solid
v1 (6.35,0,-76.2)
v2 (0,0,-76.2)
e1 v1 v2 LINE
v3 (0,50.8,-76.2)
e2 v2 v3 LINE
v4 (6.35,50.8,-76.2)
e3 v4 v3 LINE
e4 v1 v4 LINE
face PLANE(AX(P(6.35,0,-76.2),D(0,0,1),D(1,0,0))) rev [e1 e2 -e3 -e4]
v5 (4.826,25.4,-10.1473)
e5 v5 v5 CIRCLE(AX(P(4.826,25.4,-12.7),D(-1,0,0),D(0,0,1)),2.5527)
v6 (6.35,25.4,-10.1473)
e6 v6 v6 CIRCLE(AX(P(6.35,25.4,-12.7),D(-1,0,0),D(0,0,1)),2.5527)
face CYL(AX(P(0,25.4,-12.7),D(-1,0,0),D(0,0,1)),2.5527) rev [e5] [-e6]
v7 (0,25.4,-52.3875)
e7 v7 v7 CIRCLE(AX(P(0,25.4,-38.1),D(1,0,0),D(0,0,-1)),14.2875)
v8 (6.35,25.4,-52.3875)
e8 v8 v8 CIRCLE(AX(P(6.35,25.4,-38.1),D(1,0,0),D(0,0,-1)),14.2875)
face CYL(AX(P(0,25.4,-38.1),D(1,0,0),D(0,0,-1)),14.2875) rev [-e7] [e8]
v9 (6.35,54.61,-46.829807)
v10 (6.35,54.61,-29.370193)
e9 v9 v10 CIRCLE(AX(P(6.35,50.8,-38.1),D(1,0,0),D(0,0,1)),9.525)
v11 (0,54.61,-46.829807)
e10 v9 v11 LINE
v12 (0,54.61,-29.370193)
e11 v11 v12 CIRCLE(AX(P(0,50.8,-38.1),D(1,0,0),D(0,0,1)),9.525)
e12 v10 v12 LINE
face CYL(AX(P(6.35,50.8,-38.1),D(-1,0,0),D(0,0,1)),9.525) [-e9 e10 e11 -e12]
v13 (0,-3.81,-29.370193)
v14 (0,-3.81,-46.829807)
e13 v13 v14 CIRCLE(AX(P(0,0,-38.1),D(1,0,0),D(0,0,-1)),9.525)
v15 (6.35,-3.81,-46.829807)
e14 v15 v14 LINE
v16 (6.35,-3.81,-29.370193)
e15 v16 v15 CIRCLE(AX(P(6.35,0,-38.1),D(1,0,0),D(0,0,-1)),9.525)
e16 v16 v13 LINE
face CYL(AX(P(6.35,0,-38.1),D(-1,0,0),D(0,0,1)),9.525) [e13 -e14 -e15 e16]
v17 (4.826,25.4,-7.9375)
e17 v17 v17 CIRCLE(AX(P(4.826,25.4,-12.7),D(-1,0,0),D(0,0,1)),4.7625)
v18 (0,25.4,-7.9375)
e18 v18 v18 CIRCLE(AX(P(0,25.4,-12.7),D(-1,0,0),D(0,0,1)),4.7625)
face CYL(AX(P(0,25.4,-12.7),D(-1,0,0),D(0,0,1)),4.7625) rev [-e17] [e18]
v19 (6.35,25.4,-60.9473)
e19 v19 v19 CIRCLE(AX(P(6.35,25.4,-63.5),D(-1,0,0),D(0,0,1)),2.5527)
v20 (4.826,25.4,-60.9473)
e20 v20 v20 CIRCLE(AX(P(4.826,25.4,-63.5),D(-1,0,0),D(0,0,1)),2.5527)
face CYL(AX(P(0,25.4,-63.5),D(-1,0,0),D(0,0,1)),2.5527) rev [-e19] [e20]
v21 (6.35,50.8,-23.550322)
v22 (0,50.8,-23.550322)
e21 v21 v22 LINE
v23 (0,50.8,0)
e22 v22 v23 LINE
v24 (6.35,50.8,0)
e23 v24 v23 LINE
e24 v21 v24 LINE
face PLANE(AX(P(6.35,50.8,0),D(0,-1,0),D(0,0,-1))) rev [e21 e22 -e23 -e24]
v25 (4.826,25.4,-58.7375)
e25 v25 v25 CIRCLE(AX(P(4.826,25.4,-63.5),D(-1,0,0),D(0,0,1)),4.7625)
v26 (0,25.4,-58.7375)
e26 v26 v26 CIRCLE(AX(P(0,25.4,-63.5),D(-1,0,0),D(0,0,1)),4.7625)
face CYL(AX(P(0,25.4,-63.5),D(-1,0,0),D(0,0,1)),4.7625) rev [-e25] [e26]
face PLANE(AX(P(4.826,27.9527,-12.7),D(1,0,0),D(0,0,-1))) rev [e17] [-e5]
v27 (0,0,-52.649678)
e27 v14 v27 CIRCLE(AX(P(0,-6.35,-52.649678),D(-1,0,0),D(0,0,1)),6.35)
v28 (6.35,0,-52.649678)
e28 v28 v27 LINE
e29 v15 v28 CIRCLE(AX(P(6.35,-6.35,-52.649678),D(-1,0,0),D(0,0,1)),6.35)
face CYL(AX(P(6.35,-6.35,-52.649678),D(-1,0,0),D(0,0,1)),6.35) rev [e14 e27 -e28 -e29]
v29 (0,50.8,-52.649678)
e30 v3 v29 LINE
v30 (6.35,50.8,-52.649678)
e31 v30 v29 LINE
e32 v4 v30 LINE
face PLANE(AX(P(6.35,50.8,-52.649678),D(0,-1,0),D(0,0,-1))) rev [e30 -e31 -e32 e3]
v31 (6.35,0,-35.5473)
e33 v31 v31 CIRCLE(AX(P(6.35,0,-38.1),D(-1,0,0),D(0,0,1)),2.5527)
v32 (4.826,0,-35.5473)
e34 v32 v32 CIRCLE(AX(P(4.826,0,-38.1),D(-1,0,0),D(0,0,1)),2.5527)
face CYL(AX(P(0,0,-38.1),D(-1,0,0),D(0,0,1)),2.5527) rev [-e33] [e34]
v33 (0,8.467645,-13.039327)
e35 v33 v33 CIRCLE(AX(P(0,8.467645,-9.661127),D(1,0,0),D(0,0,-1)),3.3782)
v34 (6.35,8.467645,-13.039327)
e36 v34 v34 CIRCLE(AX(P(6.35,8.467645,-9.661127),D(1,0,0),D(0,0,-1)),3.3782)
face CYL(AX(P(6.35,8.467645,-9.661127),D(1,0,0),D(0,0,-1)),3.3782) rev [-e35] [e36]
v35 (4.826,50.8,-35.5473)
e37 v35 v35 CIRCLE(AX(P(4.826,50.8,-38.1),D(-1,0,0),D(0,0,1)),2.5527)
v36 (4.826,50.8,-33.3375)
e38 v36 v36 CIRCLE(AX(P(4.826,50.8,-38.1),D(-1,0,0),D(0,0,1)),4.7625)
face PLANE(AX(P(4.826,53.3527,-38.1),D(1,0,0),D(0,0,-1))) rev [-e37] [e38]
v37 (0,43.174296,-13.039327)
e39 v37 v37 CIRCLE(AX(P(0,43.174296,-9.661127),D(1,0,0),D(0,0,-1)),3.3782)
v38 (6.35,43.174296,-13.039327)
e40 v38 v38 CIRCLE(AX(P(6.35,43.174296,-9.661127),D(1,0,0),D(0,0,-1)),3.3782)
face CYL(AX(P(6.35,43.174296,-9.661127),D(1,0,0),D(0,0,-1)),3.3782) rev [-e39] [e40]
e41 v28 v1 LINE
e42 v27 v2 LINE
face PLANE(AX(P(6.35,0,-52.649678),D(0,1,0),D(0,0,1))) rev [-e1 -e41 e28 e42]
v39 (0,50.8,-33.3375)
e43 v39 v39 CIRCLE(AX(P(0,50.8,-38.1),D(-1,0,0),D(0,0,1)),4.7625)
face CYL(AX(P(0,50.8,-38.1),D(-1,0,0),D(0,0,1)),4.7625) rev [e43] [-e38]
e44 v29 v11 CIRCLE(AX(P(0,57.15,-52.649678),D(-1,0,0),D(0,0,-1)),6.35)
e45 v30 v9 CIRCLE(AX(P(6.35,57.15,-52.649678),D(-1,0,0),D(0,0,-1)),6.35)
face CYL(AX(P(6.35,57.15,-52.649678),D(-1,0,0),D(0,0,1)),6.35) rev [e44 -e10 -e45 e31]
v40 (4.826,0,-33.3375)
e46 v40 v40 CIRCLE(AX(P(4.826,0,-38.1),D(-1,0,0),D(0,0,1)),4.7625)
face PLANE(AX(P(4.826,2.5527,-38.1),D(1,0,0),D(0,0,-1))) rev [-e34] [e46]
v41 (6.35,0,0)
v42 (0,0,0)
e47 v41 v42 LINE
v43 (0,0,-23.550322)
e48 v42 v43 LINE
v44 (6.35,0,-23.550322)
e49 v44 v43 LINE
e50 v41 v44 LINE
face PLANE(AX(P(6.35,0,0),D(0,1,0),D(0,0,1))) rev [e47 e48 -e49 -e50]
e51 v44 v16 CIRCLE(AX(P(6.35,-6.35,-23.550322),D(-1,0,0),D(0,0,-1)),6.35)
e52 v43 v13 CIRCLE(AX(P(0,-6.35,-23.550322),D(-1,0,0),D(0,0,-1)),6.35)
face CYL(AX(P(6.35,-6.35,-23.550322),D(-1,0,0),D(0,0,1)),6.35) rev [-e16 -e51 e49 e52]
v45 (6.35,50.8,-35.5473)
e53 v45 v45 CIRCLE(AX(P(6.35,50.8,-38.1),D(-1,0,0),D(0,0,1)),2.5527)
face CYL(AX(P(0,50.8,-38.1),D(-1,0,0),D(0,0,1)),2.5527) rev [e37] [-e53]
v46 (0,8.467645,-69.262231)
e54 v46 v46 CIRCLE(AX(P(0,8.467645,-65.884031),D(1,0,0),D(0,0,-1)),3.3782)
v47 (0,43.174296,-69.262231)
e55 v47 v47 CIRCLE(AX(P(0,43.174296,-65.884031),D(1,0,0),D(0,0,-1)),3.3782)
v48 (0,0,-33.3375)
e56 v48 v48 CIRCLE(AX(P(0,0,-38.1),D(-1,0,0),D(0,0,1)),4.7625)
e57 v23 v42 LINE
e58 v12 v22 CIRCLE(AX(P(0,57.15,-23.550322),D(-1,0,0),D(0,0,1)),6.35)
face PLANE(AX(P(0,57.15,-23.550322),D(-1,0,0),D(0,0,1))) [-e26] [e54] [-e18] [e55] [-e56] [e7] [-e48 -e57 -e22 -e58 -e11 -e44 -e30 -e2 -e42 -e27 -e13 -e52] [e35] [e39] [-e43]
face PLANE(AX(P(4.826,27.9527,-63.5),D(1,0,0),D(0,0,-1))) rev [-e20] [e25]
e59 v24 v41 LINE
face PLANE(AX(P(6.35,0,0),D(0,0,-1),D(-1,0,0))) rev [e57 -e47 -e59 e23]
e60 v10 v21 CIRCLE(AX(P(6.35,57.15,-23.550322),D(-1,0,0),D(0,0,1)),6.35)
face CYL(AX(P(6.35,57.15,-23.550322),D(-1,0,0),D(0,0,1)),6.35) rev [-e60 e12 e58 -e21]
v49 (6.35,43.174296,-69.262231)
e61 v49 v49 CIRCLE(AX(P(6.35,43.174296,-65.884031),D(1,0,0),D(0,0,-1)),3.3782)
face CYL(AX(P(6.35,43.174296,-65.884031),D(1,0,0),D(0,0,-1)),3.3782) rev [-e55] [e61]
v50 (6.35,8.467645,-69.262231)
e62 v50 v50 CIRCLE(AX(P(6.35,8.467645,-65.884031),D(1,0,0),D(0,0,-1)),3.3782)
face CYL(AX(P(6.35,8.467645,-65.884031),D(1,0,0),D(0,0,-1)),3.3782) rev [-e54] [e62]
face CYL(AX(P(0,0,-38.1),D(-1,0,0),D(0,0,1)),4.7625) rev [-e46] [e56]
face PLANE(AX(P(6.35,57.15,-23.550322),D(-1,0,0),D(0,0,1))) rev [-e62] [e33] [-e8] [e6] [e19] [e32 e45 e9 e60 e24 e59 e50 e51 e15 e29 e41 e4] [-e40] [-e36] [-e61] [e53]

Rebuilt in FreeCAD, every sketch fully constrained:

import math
import FreeCAD as App
import Part
import Sketcher

V = App.Vector
Q = App.Units.Quantity

doc = App.newDocument("Part")
body = doc.addObject("PartDesign::Body", "Body")

sketch1 = body.newObject("Sketcher::SketchObject", "Sketch")
sketch1.AttachmentSupport = (doc.getObject("YZ_Plane"), [""])
sketch1.MapMode = "FlatFace"
sketch1.addGeometry([
    Part.LineSegment(V(51, -76, 0), V(51, -53, 0)),
    Part.ArcOfCircle(Part.Circle(V(57, -53, 0), V(0, 0, 1), 6), math.radians(114), math.radians(180)),
    Part.ArcOfCircle(Part.Circle(V(51, -38, 0), V(0, 0, 1), 10), math.radians(-66), math.radians(66)),
    Part.ArcOfCircle(Part.Circle(V(57, -24, 0), V(0, 0, 1), 6), math.radians(-180), math.radians(-114)),
    Part.LineSegment(V(51, -24, 0), V(51, 0, 0)),
    Part.LineSegment(V(51, 0, 0), V(0, 0, 0)),
    Part.LineSegment(V(0, 0, 0), V(0, -24, 0)),
    Part.ArcOfCircle(Part.Circle(V(-6, -24, 0), V(0, 0, 1), 6), math.radians(-66), math.radians(0)),
    Part.ArcOfCircle(Part.Circle(V(0, -38, 0), V(0, 0, 1), 10), math.radians(114), math.radians(246)),
    Part.ArcOfCircle(Part.Circle(V(-6, -53, 0), V(0, 0, 1), 6), math.radians(0), math.radians(66)),
    Part.LineSegment(V(0, -53, 0), V(0, -76, 0)),
    Part.LineSegment(V(0, -76, 0), V(51, -76, 0)),
], False)
sketch1.addConstraint([
    Sketcher.Constraint("Tangent", 0, 2, 1, 2),
    Sketcher.Constraint("Tangent", 1, 1, 2, 1),
    Sketcher.Constraint("Tangent", 2, 2, 3, 2),
    Sketcher.Constraint("Tangent", 3, 1, 4, 1),
    Sketcher.Constraint("Coincident", 4, 2, 5, 1),
    Sketcher.Constraint("Coincident", 5, 2, 6, 1),
    Sketcher.Constraint("Tangent", 6, 2, 7, 2),
    Sketcher.Constraint("Tangent", 7, 1, 8, 1),
    Sketcher.Constraint("Tangent", 8, 2, 9, 2),
    Sketcher.Constraint("Tangent", 9, 1, 10, 1),
    Sketcher.Constraint("Coincident", 10, 2, 11, 1),
    Sketcher.Constraint("Coincident", 11, 2, 0, 1),
    Sketcher.Constraint("Vertical", 0),
    Sketcher.Constraint("Vertical", 4),
    Sketcher.Constraint("Horizontal", 5),
    Sketcher.Constraint("Vertical", 6),
    Sketcher.Constraint("Vertical", 10),
    Sketcher.Constraint("Horizontal", 11),
    Sketcher.Constraint("Coincident", 5, 2, -1, 1),
    Sketcher.Constraint("Equal", 1, 3),
    Sketcher.Constraint("Equal", 3, 7),
    Sketcher.Constraint("Equal", 2, 8),
    Sketcher.Constraint("Equal", 7, 9),
    Sketcher.Constraint("PointOnObject", 8, 3, -2),
    Sketcher.Constraint("PointOnObject", 9, 1, -2),
    Sketcher.Constraint("Horizontal", 3, 3, 7, 3),
    Sketcher.Constraint("Horizontal", 2, 3, 8, 3),
    Sketcher.Constraint("Horizontal", 1, 3, 9, 3),
    Sketcher.Constraint("Equal", 0, 4),
    Sketcher.Constraint("DistanceX", 5, 2, 5, 1, Q("2 in")),
    Sketcher.Constraint("Radius", 1, Q("0.25 in")),
    Sketcher.Constraint("DistanceY", 10, 2, -1, 1, Q("3 in")),
    Sketcher.Constraint("Radius", 2, Q("0.375 in")),
])
pad1 = body.newObject("PartDesign::Pad", "Pad")
pad1.Profile = sketch1
pad1.Length = Q("0.25 in")

sketch2 = body.newObject("Sketcher::SketchObject", "Sketch001")
sketch2.AttachmentSupport = (doc.getObject("YZ_Plane"), [""])
sketch2.MapMode = "FlatFace"
sketch2.AttachmentOffset = App.Placement(V(0, 0, 0.25 * 25.4), App.Rotation())
sketch2.addGeometry(Part.Circle(V(25, -38, 0), V(0, 0, 1), 14), False)
sketch2.addConstraint([
    Sketcher.Constraint("Diameter", 0, Q("1.125 in")),
    Sketcher.Constraint("DistanceX", -1, 1, 0, 3, Q("1 in")),
    Sketcher.Constraint("DistanceY", 0, 3, -1, 1, Q("1.5 in")),
])
pocket1 = body.newObject("PartDesign::Pocket", "Pocket")
pocket1.Profile = sketch2
pocket1.Type = "ThroughAll"

sketch3 = body.newObject("Sketcher::SketchObject", "Sketch002")
sketch3.AttachmentSupport = (doc.getObject("YZ_Plane"), [""])
sketch3.MapMode = "FlatFace"
sketch3.addGeometry([
    Part.Circle(V(25.4, -63.5, 0), V(0, 0, 1), 2.6),
    Part.Circle(V(50.8, -38.1, 0), V(0, 0, 1), 2.6),
    Part.Circle(V(25.4, -12.7, 0), V(0, 0, 1), 2.6),
    Part.Circle(V(0, -38.1, 0), V(0, 0, 1), 2.6),
], False)
sketch3.addConstraint([
    Sketcher.Constraint("Equal", 0, 1),
    Sketcher.Constraint("Equal", 1, 2),
    Sketcher.Constraint("Equal", 2, 3),
    Sketcher.Constraint("PointOnObject", 3, 3, -2),
    Sketcher.Constraint("Horizontal", 1, 3, 3, 3),
    Sketcher.Constraint("Vertical", 0, 3, 2, 3),
    Sketcher.Constraint("Diameter", 0, Q("0.201 in")),
    Sketcher.Constraint("DistanceX", -1, 1, 0, 3, Q("1 in")),
    Sketcher.Constraint("DistanceX", -1, 1, 1, 3, Q("2 in")),
    Sketcher.Constraint("DistanceY", 0, 3, 1, 3, Q("1 in")),
    Sketcher.Constraint("DistanceY", 1, 3, 2, 3, Q("1 in")),
    Sketcher.Constraint("DistanceY", 0, 3, -1, 1, Q("2.5 in")),
])
doc.recompute()
hole = body.newObject("PartDesign::Hole", "Hole")
hole.Profile = sketch3
hole.ThreadType = "None"
hole.Diameter = Q("0.201 in")
hole.DepthType = "ThroughAll"
hole.HoleCutType = "Counterbore"
hole.HoleCutDiameter = Q("0.375 in")
hole.HoleCutDepth = Q("0.19 in")
hole.Reversed = True

sketch4 = body.newObject("Sketcher::SketchObject", "Sketch003")
sketch4.AttachmentSupport = (doc.getObject("YZ_Plane"), [""])
sketch4.MapMode = "FlatFace"
sketch4.AttachmentOffset = App.Placement(V(0, 0, 0.25 * 25.4), App.Rotation())
sketch4.addGeometry([
    Part.Circle(V(43.2, -9.7, 0), V(0, 0, 1), 3.4),
    Part.Circle(V(43.2, -65.9, 0), V(0, 0, 1), 3.4),
    Part.Circle(V(8.5, -65.9, 0), V(0, 0, 1), 3.4),
    Part.Circle(V(8.5, -9.7, 0), V(0, 0, 1), 3.4),
], False)
sketch4.addConstraint([
    Sketcher.Constraint("Equal", 0, 1),
    Sketcher.Constraint("Equal", 1, 2),
    Sketcher.Constraint("Equal", 2, 3),
    Sketcher.Constraint("Horizontal", 1, 3, 2, 3),
    Sketcher.Constraint("Horizontal", 0, 3, 3, 3),
    Sketcher.Constraint("Vertical", 0, 3, 1, 3),
    Sketcher.Constraint("Vertical", 2, 3, 3, 3),
    Sketcher.Constraint("Diameter", 0, Q("0.266 in")),
    Sketcher.Constraint("DistanceY", 1, 3, 0, 3, Q("2.2135001 in")),
    Sketcher.Constraint("DistanceY", 1, 3, -1, 1, 65.884031),
    Sketcher.Constraint("DistanceX", 2, 3, 1, 3, 34.706651),
    Sketcher.Constraint("DistanceX", -1, 1, 0, 3, 43.174296),
])
doc.recompute()
hole2 = body.newObject("PartDesign::Hole", "Hole001")
hole2.Profile = sketch4
hole2.ThreadType = "None"
hole2.Diameter = Q("0.266 in")
hole2.DepthType = "ThroughAll"

doc.recompute()
